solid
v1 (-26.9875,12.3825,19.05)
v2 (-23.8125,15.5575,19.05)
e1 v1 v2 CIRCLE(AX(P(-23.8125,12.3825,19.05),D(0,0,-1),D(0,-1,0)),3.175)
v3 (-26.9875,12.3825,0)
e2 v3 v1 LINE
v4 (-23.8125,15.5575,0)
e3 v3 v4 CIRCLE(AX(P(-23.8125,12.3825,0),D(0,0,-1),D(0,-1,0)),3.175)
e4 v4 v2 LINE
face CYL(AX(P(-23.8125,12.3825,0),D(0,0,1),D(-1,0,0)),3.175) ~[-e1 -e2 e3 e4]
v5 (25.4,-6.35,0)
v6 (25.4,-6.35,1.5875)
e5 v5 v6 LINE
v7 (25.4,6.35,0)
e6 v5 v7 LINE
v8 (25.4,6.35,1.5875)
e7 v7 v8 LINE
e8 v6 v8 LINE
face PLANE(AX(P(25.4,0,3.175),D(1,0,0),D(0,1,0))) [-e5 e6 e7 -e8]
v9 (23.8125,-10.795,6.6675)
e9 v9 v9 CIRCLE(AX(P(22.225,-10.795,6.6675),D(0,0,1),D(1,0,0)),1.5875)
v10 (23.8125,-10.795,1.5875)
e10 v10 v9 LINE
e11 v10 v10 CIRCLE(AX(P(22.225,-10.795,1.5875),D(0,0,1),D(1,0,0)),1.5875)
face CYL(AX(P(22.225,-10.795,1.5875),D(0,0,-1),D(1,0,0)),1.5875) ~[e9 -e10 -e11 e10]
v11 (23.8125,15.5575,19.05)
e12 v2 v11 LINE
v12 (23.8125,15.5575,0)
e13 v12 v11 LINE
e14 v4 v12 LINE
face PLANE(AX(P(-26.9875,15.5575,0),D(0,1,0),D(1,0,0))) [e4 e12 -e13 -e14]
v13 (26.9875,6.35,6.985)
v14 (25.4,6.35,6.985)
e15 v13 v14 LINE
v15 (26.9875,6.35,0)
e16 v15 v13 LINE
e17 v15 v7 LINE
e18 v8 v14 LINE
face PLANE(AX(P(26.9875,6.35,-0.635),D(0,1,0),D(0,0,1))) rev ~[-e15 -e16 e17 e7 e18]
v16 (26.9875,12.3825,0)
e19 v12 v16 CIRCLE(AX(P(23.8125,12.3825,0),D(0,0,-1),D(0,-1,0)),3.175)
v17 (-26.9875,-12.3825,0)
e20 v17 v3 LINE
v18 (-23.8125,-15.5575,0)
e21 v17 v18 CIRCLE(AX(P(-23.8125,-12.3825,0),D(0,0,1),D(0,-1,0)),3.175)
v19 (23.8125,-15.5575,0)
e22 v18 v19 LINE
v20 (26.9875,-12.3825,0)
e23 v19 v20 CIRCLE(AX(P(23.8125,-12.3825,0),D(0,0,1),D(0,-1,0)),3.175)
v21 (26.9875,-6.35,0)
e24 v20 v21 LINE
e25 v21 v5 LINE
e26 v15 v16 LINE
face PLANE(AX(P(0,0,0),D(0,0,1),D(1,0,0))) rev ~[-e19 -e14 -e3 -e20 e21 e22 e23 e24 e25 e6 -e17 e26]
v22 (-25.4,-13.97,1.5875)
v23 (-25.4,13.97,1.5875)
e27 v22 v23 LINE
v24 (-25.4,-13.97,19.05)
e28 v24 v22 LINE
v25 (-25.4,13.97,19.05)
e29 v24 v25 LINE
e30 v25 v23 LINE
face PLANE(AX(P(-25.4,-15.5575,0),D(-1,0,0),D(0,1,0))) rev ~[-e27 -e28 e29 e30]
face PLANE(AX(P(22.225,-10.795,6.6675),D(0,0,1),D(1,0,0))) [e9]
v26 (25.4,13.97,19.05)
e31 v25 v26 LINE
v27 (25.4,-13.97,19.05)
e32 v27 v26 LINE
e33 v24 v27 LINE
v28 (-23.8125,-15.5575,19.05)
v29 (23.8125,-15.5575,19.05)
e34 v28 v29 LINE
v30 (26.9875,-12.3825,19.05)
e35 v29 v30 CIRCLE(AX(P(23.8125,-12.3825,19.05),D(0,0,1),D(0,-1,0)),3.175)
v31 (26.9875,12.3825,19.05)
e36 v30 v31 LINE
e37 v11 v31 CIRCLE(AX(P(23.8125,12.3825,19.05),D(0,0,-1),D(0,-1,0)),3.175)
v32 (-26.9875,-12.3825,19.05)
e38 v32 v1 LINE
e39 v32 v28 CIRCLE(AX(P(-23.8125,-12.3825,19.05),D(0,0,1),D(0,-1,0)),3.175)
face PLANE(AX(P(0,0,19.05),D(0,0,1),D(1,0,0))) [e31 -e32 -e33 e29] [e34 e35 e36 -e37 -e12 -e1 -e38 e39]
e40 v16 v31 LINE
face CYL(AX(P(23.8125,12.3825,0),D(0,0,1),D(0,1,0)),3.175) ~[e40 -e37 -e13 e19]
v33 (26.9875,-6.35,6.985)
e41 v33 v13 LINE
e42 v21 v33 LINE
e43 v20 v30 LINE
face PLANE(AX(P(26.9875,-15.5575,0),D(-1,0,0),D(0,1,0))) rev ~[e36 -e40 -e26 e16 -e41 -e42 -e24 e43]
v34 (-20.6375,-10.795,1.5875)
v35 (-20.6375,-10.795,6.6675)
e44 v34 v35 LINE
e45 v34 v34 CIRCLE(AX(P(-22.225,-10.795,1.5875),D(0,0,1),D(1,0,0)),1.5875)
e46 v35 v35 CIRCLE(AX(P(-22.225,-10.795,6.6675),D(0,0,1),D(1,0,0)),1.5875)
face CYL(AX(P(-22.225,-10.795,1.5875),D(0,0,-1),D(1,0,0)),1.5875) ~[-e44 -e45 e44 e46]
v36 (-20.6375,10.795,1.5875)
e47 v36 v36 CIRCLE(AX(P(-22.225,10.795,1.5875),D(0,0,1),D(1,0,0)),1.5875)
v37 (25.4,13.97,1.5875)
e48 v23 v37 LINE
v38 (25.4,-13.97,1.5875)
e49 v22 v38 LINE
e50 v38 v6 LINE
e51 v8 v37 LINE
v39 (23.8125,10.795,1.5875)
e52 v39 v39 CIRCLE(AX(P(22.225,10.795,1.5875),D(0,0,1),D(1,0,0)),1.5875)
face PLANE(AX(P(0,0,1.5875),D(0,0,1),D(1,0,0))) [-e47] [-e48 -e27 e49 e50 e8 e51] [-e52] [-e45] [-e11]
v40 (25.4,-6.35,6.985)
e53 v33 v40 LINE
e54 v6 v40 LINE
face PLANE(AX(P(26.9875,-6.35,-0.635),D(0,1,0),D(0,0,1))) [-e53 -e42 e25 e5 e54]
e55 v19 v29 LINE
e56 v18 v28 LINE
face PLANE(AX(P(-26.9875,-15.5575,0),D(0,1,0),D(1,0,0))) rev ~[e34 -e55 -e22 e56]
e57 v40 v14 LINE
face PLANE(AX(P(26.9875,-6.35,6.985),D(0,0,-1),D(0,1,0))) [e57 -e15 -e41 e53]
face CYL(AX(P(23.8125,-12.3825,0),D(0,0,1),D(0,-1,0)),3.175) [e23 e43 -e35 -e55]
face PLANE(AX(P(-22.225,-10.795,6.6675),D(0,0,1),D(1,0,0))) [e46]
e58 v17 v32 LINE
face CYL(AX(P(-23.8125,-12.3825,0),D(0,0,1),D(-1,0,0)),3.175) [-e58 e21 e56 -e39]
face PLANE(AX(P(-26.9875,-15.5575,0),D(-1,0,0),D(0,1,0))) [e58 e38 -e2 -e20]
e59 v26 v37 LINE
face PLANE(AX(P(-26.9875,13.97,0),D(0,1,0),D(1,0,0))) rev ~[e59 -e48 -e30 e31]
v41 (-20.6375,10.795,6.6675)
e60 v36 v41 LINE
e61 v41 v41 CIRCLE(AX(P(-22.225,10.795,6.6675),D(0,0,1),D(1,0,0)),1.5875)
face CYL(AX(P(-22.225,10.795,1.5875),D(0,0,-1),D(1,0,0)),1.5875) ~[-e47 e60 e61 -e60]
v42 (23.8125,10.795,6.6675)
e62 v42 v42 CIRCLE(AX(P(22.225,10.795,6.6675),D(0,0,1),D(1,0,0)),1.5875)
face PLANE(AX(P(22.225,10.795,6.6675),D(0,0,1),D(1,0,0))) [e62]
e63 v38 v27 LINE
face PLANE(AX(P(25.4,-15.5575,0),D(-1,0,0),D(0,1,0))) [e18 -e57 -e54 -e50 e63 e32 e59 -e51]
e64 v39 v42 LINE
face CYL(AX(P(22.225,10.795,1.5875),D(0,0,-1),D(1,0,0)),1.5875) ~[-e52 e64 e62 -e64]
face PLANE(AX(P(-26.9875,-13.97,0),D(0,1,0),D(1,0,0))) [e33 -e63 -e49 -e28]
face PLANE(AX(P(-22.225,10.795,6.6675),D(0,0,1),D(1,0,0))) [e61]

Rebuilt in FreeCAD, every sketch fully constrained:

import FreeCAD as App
import Part
import Sketcher
from FreeCAD import Vector
Q = App.Units.Quantity


def edges_at(feature, points):
    """Names of the edges that pass closest to the given points."""
    edges = feature.Shape.Edges
    near = lambda p: min(range(len(edges)), key=lambda i: edges[i].distToShape(Part.Vertex(*p))[0])
    return sorted({f"Edge{near(p) + 1}" for p in points})


def faces_at(feature, points):
    """Names of the faces that lie closest to the given points."""
    faces = feature.Shape.Faces
    near = lambda p: min(range(len(faces)), key=lambda i: faces[i].distToShape(Part.Vertex(*p))[0])
    return sorted({f"Face{near(p) + 1}" for p in points})


def add_polygon(sketch, points):
    """Adds a closed chain of lines whose ends are joined by coincident constraints."""
    first, n = sketch.GeometryCount, len(points)
    for a, b in zip(points, points[1:] + points[:1]):
        sketch.addGeometry(Part.LineSegment(App.Vector(*a, 0), App.Vector(*b, 0)), False)
    for i in range(n):
        sketch.addConstraint(Sketcher.Constraint("Coincident", first + i, 2, first + (i + 1) % n, 1))

doc = App.newDocument("Part")
params = doc.addObject("Spreadsheet::Sheet", "Params")
for row, (alias, value) in enumerate([
    ("sketch1_width", "2.125 in"),
    ("sketch1_height", "1.225 in"),
    ("pad1_length", "0.75 in"),
    ("thickness_wall", "0.0625 in"),
    ("sketch2_diameter", "0.125 in"),
    ("pad2_length", "0.2 in"),
    ("sketch3_width", "0.5 in"),
    ("sketch3_height", "0.3 in"),
    ("pocket1_length", "0.0625 in"),
    ("fillet_radius", "0.125 in"),
], start=1):
    params.set(f"A{row}", alias)
    params.set(f"B{row}", "=" + value)
    params.setAlias(f"B{row}", alias)

body = doc.addObject("PartDesign::Body", "Body")

sketch1 = body.newObject("Sketcher::SketchObject", "Sketch")
sketch1.AttachmentSupport = (doc.getObject("XY_Plane"), [""])
sketch1.MapMode = "FlatFace"
add_polygon(sketch1, [(-27, 16), (-27, -16), (27, -16), (27, 16)])
sketch1.addConstraint(Sketcher.Constraint("Vertical", 0))
sketch1.addConstraint(Sketcher.Constraint("Horizontal", 1))
sketch1.addConstraint(Sketcher.Constraint("Vertical", 2))
sketch1.addConstraint(Sketcher.Constraint("Horizontal", 3))
sketch1.addConstraint(Sketcher.Constraint("Symmetric", 0, 2, 2, 2, -1, 1))
sketch1.addConstraint(Sketcher.Constraint("DistanceX", 1, 1, 1, 2, Q("2.125 in")))
sketch1.addConstraint(Sketcher.Constraint("DistanceY", 0, 2, 0, 1, Q("1.225 in")))
sketch1.setExpression("Constraints[9]", "Params.sketch1_width")
sketch1.setExpression("Constraints[10]", "Params.sketch1_height")
pad1 = body.newObject("PartDesign::Pad", "Pad")
pad1.Profile = sketch1
pad1.setExpression("Length", "Params.pad1_length")
doc.recompute()

thickness = body.newObject("PartDesign::Thickness", "Thickness")
thickness.Base = (pad1, faces_at(pad1, [(0, 0, 19.05)]))
thickness.setExpression("Value", "Params.thickness_wall")
thickness.Reversed = True
thickness.Join = "Arc"

sketch2 = body.newObject("Sketcher::SketchObject", "Sketch001")
sketch2.AttachmentSupport = (doc.getObject("XY_Plane"), [""])
sketch2.MapMode = "FlatFace"
sketch2.AttachmentOffset = App.Placement(Vector(0, 0, 0.0625 * 25.4), App.Rotation())
sketch2.addGeometry(Part.Circle(Vector(22.2, 10.8, 0), Vector(0, 0, 1), 1.6), False)
sketch2.addGeometry(Part.Circle(Vector(22.2, -10.8, 0), Vector(0, 0, 1), 1.6), False)
sketch2.addGeometry(Part.Circle(Vector(-22.2, 10.8, 0), Vector(0, 0, 1), 1.6), False)
sketch2.addGeometry(Part.Circle(Vector(-22.2, -10.8, 0), Vector(0, 0, 1), 1.6), False)
sketch2.addConstraint(Sketcher.Constraint("Equal", 0, 1))
sketch2.addConstraint(Sketcher.Constraint("Equal", 1, 2))
sketch2.addConstraint(Sketcher.Constraint("Equal", 2, 3))
sketch2.addConstraint(Sketcher.Constraint("Symmetric", 1, 3, 2, 3, -1, 1))
sketch2.addConstraint(Sketcher.Constraint("Symmetric", 0, 3, 3, 3, -1, 1))
sketch2.addConstraint(Sketcher.Constraint("Symmetric", 0, 3, 2, 3, -2))
sketch2.addConstraint(Sketcher.Constraint("Diameter", 0, Q("0.125 in")))
sketch2.addConstraint(Sketcher.Constraint("DistanceY", 1, 3, 0, 3, Q("0.85 in")))
sketch2.addConstraint(Sketcher.Constraint("DistanceX", 2, 3, 0, 3, Q("1.75 in")))
sketch2.setExpression("Constraints[6]", "Params.sketch2_diameter")
pad2 = body.newObject("PartDesign::Pad", "Pad001")
pad2.Profile = sketch2
pad2.setExpression("Length", "Params.pad2_length")

sketch3 = body.newObject("Sketcher::SketchObject", "Sketch002")
sketch3.AttachmentSupport = (doc.getObject("YZ_Plane"), [""])
sketch3.MapMode = "FlatFace"
sketch3.AttachmentOffset = App.Placement(Vector(0, 0, 1.0625 * 25.4), App.Rotation())
add_polygon(sketch3, [(-6, 7), (-6, -1), (6, -1), (6, 7)])
sketch3.addConstraint(Sketcher.Constraint("Vertical", 0))
sketch3.addConstraint(Sketcher.Constraint("Horizontal", 1))
sketch3.addConstraint(Sketcher.Constraint("Vertical", 2))
sketch3.addConstraint(Sketcher.Constraint("Horizontal", 3))
sketch3.addConstraint(Sketcher.Constraint("DistanceX", 1, 1, 1, 2, Q("0.5 in")))
sketch3.addConstraint(Sketcher.Constraint("DistanceY", 0, 2, 0, 1, Q("0.3 in")))
sketch3.addConstraint(Sketcher.Constraint("DistanceX", 0, 2, -1, 1, Q("0.25 in")))
sketch3.addConstraint(Sketcher.Constraint("DistanceY", 0, 2, -1, 1, Q("0.025 in")))
sketch3.setExpression("Constraints[8]", "Params.sketch3_width")
sketch3.setExpression("Constraints[9]", "Params.sketch3_height")
pocket1 = body.newObject("PartDesign::Pocket", "Pocket")
pocket1.Profile = sketch3
pocket1.setExpression("Length", "Params.pocket1_length")
doc.recompute()

fillet = body.newObject("PartDesign::Fillet", "Fillet")
fillet.Base = (pocket1, edges_at(pocket1, [
    (26.988, -15.557, 9.525),
    (-26.988, -15.557, 9.525),
    (-26.988, 15.557, 9.525),
    (26.988, 15.557, 9.525),
]))
fillet.setExpression("Radius", "Params.fillet_radius")

doc.recompute()
